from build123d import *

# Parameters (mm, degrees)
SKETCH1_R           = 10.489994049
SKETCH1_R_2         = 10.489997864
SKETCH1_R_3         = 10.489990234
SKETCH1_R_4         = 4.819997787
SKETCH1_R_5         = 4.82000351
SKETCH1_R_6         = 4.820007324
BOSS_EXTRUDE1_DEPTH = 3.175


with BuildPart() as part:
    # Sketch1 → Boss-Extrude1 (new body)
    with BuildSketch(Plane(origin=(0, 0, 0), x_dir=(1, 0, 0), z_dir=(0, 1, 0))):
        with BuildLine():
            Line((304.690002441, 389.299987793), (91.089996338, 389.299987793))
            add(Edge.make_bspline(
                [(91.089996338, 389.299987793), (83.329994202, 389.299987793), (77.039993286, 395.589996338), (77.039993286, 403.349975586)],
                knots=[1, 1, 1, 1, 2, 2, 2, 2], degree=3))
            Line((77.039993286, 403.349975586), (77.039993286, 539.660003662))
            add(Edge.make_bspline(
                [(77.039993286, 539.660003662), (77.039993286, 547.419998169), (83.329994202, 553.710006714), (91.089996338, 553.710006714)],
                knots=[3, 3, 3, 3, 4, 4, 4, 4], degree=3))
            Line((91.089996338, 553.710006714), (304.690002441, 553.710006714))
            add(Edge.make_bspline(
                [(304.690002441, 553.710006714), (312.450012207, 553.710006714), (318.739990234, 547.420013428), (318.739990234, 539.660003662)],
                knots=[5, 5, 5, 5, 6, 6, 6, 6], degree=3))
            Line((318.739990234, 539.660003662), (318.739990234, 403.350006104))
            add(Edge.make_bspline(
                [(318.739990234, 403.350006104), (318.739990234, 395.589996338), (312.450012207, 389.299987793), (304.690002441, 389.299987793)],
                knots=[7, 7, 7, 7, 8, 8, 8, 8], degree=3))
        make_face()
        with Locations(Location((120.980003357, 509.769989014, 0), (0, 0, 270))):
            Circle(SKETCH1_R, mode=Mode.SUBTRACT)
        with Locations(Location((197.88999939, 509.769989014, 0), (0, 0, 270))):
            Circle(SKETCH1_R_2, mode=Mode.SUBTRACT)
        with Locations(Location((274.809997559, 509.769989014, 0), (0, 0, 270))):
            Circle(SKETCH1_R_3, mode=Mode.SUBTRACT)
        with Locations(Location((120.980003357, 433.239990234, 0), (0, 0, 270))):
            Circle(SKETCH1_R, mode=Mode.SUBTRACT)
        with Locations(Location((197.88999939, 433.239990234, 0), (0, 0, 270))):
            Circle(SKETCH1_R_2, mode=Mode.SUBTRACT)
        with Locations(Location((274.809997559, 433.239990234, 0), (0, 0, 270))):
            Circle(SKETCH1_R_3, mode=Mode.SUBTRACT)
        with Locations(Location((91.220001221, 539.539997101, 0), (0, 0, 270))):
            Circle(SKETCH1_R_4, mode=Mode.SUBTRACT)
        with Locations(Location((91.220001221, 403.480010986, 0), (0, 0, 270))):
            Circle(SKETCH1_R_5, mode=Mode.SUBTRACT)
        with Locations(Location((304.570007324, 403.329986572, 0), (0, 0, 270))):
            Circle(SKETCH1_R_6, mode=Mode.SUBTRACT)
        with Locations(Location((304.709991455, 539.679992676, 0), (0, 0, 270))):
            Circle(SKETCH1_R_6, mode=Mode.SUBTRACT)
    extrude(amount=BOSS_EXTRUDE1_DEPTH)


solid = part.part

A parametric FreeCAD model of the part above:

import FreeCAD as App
import Part
import Sketcher

V = App.Vector
Q = App.Units.Quantity

doc = App.newDocument("Part")
body = doc.addObject("PartDesign::Body", "Body")

# Sketch on XZ plane
sketch1 = doc.addObject("Sketcher::SketchObject", "Sketch")
body.addObject(sketch1)
sketch1.AttachmentSupport = (doc.XZ_Plane, [""])
sketch1.MapMode = "FlatFace"
sketch1.addGeometry(Part.LineSegment(V(91.089996, -389.299988, 0), V(304.690002, -389.299988, 0)), False)
sketch1.addGeometry(Part.BSplineCurve([V(318.73999, -403.350006, 0), V(318.73999, -395.589996, 0), V(312.450012, -389.299988, 0), V(304.690002, -389.299988, 0)], [4, 4], [7, 8], False, 3, [1, 1, 1, 1], False), False)
sketch1.addGeometry(Part.LineSegment(V(318.73999, -403.350006, 0), V(318.73999, -539.660004, 0)), False)
sketch1.addGeometry(Part.BSplineCurve([V(304.690002, -553.710007, 0), V(312.450012, -553.710007, 0), V(318.73999, -547.420013, 0), V(318.73999, -539.660004, 0)], [4, 4], [5, 6], False, 3, [1, 1, 1, 1], False), False)
sketch1.addGeometry(Part.LineSegment(V(304.690002, -553.710007, 0), V(91.089996, -553.710007, 0)), False)
sketch1.addGeometry(Part.BSplineCurve([V(77.039993, -539.660004, 0), V(77.039993, -547.419998, 0), V(83.329994, -553.710007, 0), V(91.089996, -553.710007, 0)], [4, 4], [3, 4], False, 3, [1, 1, 1, 1], False), False)
sketch1.addGeometry(Part.LineSegment(V(77.039993, -539.660004, 0), V(77.039993, -403.349976, 0)), False)
sketch1.addGeometry(Part.BSplineCurve([V(91.089996, -389.299988, 0), V(83.329994, -389.299988, 0), V(77.039993, -395.589996, 0), V(77.039993, -403.349976, 0)], [4, 4], [1, 2], False, 3, [1, 1, 1, 1], False), False)
sketch1.addGeometry(Part.Circle(V(304.570007, -403.329987, 0), V(0, 0, 1), 4.820007), False)
sketch1.addGeometry(Part.Circle(V(274.809998, -433.23999, 0), V(0, 0, 1), 10.48999), False)
sketch1.addGeometry(Part.Circle(V(197.889999, -433.23999, 0), V(0, 0, 1), 10.489998), False)
sketch1.addGeometry(Part.Circle(V(91.220001, -403.480011, 0), V(0, 0, 1), 4.820004), False)
sketch1.addGeometry(Part.Circle(V(120.980003, -433.23999, 0), V(0, 0, 1), 10.489994), False)
sketch1.addGeometry(Part.Circle(V(274.809998, -509.769989, 0), V(0, 0, 1), 10.48999), False)
sketch1.addGeometry(Part.Circle(V(304.709991, -539.679993, 0), V(0, 0, 1), 4.820007), False)
sketch1.addGeometry(Part.Circle(V(197.889999, -509.769989, 0), V(0, 0, 1), 10.489998), False)
sketch1.addGeometry(Part.Circle(V(120.980003, -509.769989, 0), V(0, 0, 1), 10.489994), False)
sketch1.addGeometry(Part.Circle(V(91.220001, -539.539997, 0), V(0, 0, 1), 4.819998), False)
sketch1.addConstraint(Sketcher.Constraint("Block", 1))
sketch1.addConstraint(Sketcher.Constraint("Block", 3))
sketch1.addConstraint(Sketcher.Constraint("Block", 5))
sketch1.addConstraint(Sketcher.Constraint("Block", 7))
sketch1.addConstraint(Sketcher.Constraint("Coincident", 0, 2, 1, 2))
sketch1.addConstraint(Sketcher.Constraint("Coincident", 1, 1, 2, 1))
sketch1.addConstraint(Sketcher.Constraint("Coincident", 2, 2, 3, 2))
sketch1.addConstraint(Sketcher.Constraint("Coincident", 3, 1, 4, 1))
sketch1.addConstraint(Sketcher.Constraint("Coincident", 4, 2, 5, 2))
sketch1.addConstraint(Sketcher.Constraint("Coincident", 5, 1, 6, 1))
sketch1.addConstraint(Sketcher.Constraint("Coincident", 6, 2, 7, 2))
sketch1.addConstraint(Sketcher.Constraint("Coincident", 7, 1, 0, 1))
sketch1.addConstraint(Sketcher.Constraint("Equal", 9, 13))
sketch1.addConstraint(Sketcher.Constraint("Equal", 8, 14))
sketch1.addConstraint(Sketcher.Constraint("Equal", 10, 15))
sketch1.addConstraint(Sketcher.Constraint("Equal", 12, 16))
sketch1.addConstraint(Sketcher.Constraint("Horizontal", 9, 3, 10, 3))
sketch1.addConstraint(Sketcher.Constraint("Horizontal", 10, 3, 12, 3))
sketch1.addConstraint(Sketcher.Constraint("Horizontal", 13, 3, 15, 3))
sketch1.addConstraint(Sketcher.Constraint("Horizontal", 15, 3, 16, 3))
sketch1.addConstraint(Sketcher.Constraint("Vertical", 9, 3, 13, 3))
sketch1.addConstraint(Sketcher.Constraint("Vertical", 10, 3, 15, 3))
sketch1.addConstraint(Sketcher.Constraint("Vertical", 12, 3, 16, 3))
sketch1.addConstraint(Sketcher.Constraint("Vertical", 11, 3, 17, 3))
sketch1.addConstraint(Sketcher.Constraint("Diameter", 9, Q("20.97998 mm")))
sketch1.addConstraint(Sketcher.Constraint("Diameter", 12, Q("20.979988 mm")))
sketch1.addConstraint(Sketcher.Constraint("Diameter", 8, Q("9.640015 mm")))
sketch1.addConstraint(Sketcher.Constraint("Diameter", 10, Q("20.979996 mm")))
sketch1.addConstraint(Sketcher.Constraint("Diameter", 11, Q("9.640007 mm")))
sketch1.addConstraint(Sketcher.Constraint("Diameter", 17, Q("9.639996 mm")))
sketch1.addConstraint(Sketcher.Constraint("DistanceX", -1, 1, 10, 3, Q("197.889999 mm")))
sketch1.addConstraint(Sketcher.Constraint("DistanceX", -1, 1, 11, 3, Q("91.220001 mm")))
sketch1.addConstraint(Sketcher.Constraint("DistanceX", 10, 3, 9, 3, Q("76.919998 mm")))
sketch1.addConstraint(Sketcher.Constraint("DistanceY", 13, 3, 9, 3, Q("76.529999 mm")))
sketch1.addConstraint(Sketcher.Constraint("DistanceY", 8, 3, 0, 2, Q("14.029999 mm")))
sketch1.addConstraint(Sketcher.Constraint("DistanceY", 13, 3, 0, 2, Q("120.470001 mm")))
sketch1.addConstraint(Sketcher.Constraint("DistanceX", 14, 3, 2, 2, Q("14.029999 mm")))
sketch1.addConstraint(Sketcher.Constraint("DistanceY", 11, 3, -1, 1, Q("403.480011 mm")))
sketch1.addConstraint(Sketcher.Constraint("DistanceX", 9, 3, 8, 3, Q("29.76001 mm")))
sketch1.addConstraint(Sketcher.Constraint("DistanceX", 12, 3, 14, 3, Q("183.729988 mm")))
sketch1.addConstraint(Sketcher.Constraint("DistanceY", 17, 3, 16, 3, Q("29.770008 mm")))
sketch1.addConstraint(Sketcher.Constraint("DistanceY", 14, 3, 2, 2, Q("0.019989 mm")))
pad1 = doc.addObject("PartDesign::Pad", "Pad")
body.addObject(pad1)
pad1.Profile = sketch1
pad1.Length = Q("0.125 in")
pad1.Reversed = True

doc.recompute()
